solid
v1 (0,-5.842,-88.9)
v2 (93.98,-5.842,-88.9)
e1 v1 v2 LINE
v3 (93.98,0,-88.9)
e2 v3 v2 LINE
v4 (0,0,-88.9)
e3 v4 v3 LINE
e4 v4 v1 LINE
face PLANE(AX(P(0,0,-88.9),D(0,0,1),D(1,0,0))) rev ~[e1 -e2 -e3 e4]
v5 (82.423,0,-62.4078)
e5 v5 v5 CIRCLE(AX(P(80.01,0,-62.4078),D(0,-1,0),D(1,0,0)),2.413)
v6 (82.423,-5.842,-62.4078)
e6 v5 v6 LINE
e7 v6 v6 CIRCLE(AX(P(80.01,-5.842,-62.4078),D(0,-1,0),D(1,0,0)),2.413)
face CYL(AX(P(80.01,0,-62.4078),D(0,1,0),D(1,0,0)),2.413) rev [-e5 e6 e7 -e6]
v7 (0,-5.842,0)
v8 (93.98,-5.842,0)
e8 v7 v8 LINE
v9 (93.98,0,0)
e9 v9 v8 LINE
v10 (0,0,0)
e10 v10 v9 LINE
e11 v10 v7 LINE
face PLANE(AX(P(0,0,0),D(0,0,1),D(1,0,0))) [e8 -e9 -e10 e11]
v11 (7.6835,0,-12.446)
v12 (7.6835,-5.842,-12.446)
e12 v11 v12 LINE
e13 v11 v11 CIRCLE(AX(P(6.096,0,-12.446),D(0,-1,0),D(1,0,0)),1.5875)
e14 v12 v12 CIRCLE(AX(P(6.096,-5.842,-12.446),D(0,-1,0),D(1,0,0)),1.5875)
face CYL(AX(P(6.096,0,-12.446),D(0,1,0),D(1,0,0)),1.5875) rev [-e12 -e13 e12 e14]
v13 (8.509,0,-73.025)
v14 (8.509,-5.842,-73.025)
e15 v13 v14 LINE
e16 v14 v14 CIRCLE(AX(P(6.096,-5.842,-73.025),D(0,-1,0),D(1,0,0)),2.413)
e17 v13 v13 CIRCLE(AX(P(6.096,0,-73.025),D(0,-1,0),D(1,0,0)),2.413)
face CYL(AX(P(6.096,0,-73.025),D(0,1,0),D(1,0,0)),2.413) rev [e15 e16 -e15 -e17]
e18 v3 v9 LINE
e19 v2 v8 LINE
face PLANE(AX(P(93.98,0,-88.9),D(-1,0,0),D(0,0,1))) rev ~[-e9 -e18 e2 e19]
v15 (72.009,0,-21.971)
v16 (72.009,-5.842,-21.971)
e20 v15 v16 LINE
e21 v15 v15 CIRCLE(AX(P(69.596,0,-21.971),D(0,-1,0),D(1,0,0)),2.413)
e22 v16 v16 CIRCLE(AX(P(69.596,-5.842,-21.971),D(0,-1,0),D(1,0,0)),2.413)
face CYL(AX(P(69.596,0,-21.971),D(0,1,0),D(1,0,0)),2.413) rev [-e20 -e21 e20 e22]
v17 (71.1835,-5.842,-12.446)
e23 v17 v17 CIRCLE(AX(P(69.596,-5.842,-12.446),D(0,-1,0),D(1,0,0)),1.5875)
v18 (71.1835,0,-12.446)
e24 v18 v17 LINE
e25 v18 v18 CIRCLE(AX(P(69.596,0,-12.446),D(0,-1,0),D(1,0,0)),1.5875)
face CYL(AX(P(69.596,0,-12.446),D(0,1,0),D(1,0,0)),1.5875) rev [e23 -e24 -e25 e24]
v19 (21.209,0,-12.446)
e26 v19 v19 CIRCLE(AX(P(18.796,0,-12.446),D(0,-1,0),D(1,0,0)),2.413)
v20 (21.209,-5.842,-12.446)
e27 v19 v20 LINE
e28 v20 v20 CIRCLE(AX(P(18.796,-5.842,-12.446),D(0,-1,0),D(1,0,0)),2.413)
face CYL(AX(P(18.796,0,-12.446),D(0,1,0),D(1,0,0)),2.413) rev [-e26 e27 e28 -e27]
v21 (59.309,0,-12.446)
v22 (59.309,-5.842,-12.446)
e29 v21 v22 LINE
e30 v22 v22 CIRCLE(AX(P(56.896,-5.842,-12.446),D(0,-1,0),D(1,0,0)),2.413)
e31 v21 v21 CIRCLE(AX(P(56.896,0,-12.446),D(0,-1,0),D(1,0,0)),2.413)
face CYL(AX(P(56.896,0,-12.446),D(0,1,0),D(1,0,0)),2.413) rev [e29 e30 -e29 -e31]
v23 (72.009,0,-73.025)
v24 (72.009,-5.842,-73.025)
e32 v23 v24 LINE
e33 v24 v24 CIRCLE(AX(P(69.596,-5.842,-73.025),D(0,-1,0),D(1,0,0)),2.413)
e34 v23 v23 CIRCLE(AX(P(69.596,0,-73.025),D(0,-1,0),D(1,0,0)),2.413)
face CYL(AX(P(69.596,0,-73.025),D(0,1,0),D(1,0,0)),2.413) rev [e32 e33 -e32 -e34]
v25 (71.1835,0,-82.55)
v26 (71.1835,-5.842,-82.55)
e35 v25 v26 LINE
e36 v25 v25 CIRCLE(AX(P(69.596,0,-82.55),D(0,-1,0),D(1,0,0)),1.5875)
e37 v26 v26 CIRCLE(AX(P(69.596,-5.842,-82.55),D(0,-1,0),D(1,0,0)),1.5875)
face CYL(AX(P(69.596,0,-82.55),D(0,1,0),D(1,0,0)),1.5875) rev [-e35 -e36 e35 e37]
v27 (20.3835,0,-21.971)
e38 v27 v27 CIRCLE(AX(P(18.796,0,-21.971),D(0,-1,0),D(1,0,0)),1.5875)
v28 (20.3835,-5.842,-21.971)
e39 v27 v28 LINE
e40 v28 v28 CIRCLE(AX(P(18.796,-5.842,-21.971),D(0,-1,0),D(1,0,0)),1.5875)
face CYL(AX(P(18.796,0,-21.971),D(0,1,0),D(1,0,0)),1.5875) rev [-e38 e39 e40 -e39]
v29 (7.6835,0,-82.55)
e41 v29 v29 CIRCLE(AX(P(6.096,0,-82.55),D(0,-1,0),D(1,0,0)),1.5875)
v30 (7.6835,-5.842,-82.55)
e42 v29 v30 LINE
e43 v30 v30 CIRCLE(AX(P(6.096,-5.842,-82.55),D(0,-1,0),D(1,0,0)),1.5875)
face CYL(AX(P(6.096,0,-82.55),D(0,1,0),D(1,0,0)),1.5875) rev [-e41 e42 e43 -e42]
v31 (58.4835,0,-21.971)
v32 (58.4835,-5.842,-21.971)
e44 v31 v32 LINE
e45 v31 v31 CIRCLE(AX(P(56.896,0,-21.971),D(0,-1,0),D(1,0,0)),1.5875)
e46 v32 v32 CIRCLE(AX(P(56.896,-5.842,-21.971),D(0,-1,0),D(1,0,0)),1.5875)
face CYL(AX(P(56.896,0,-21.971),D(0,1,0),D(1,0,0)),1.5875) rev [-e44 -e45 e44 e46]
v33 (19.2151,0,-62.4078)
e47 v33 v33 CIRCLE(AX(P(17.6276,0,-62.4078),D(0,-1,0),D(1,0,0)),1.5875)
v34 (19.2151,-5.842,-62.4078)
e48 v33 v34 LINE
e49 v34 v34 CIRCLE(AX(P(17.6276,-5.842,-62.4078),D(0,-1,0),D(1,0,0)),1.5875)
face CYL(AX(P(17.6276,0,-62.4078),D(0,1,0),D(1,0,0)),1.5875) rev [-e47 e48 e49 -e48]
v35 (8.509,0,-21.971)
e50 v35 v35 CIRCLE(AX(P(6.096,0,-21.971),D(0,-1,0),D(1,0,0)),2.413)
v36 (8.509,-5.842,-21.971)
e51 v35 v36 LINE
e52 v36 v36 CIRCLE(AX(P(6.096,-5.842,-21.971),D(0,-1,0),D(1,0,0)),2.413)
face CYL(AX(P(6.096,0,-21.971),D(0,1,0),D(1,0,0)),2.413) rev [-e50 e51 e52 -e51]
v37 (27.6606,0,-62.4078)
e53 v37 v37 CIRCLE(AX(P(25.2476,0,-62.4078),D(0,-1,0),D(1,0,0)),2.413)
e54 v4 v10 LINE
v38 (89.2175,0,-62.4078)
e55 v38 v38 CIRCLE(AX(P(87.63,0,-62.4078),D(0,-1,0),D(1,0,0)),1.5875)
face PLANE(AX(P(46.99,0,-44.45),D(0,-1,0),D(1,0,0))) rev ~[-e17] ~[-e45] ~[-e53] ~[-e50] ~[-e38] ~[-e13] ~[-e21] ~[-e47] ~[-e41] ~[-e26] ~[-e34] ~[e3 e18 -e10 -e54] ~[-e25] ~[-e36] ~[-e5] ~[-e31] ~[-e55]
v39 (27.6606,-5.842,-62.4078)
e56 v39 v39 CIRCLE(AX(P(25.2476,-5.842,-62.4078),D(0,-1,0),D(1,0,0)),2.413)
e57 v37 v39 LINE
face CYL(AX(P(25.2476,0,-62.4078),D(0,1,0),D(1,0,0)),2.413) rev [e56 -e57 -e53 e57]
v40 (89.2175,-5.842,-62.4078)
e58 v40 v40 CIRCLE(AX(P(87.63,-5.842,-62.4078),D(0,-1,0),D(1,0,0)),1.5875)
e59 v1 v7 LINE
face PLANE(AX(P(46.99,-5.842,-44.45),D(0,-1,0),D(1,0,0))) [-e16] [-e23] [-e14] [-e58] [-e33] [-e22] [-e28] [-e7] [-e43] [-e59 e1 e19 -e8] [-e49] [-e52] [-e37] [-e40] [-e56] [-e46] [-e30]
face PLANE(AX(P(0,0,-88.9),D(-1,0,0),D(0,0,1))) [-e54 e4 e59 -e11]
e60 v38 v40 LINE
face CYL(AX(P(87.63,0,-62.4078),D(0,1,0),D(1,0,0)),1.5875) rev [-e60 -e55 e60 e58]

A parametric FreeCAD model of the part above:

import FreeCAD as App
import Part
import Sketcher
Q = App.Units.Quantity


def add_polygon(sketch, points):
    """Adds a closed chain of lines whose ends are joined by coincident constraints."""
    first, n = sketch.GeometryCount, len(points)
    for a, b in zip(points, points[1:] + points[:1]):
        sketch.addGeometry(Part.LineSegment(App.Vector(*a, 0), App.Vector(*b, 0)), False)
    for i in range(n):
        sketch.addConstraint(Sketcher.Constraint("Coincident", first + i, 2, first + (i + 1) % n, 1))

doc = App.newDocument("Part")
params = doc.addObject("Spreadsheet::Sheet", "Params")
for row, (alias, value) in enumerate([
    ("sketch1_diameter", "0.19 in"),
    ("sketch1_diameter2", "0.125 in"),
    ("sketch1_width", "3.7 in"),
    ("sketch1_height", "3.5 in"),
    ("pad1_length", "0.23 in"),
], start=1):
    params.set(f"A{row}", alias)
    params.set(f"B{row}", "=" + value)
    params.setAlias(f"B{row}", alias)

body = doc.addObject("PartDesign::Body", "Body")

sketch1 = body.newObject("Sketcher::SketchObject", "Sketch")
sketch1.AttachmentSupport = (doc.getObject("XZ_Plane"), [""])
sketch1.MapMode = "FlatFace"
add_polygon(sketch1, [(0, 0), (0, -88.9), (94, -88.9), (94, 0)])
sketch1.addGeometry(Part.Circle(App.Vector(6.1, -82.5, 0), App.Vector(0, 0, 1), 1.6), False)
sketch1.addGeometry(Part.Circle(App.Vector(6.1, -73, 0), App.Vector(0, 0, 1), 2.4), False)
sketch1.addGeometry(Part.Circle(App.Vector(17.6, -62.4, 0), App.Vector(0, 0, 1), 1.6), False)
sketch1.addGeometry(Part.Circle(App.Vector(25.2, -62.4, 0), App.Vector(0, 0, 1), 2.4), False)
sketch1.addGeometry(Part.Circle(App.Vector(69.6, -82.5, 0), App.Vector(0, 0, 1), 1.6), False)
sketch1.addGeometry(Part.Circle(App.Vector(69.6, -73, 0), App.Vector(0, 0, 1), 2.4), False)
sketch1.addGeometry(Part.Circle(App.Vector(80, -62.4, 0), App.Vector(0, 0, 1), 2.4), False)
sketch1.addGeometry(Part.Circle(App.Vector(87.6, -62.4, 0), App.Vector(0, 0, 1), 1.6), False)
sketch1.addGeometry(Part.Circle(App.Vector(6.1, -22, 0), App.Vector(0, 0, 1), 2.4), False)
sketch1.addGeometry(Part.Circle(App.Vector(18.8, -22, 0), App.Vector(0, 0, 1), 1.6), False)
sketch1.addGeometry(Part.Circle(App.Vector(6.1, -12.4, 0), App.Vector(0, 0, 1), 1.6), False)
sketch1.addGeometry(Part.Circle(App.Vector(18.8, -12.4, 0), App.Vector(0, 0, 1), 2.4), False)
sketch1.addGeometry(Part.Circle(App.Vector(56.9, -22, 0), App.Vector(0, 0, 1), 1.6), False)
sketch1.addGeometry(Part.Circle(App.Vector(56.9, -12.4, 0), App.Vector(0, 0, 1), 2.4), False)
sketch1.addGeometry(Part.Circle(App.Vector(69.6, -22, 0), App.Vector(0, 0, 1), 2.4), False)
sketch1.addGeometry(Part.Circle(App.Vector(69.6, -12.4, 0), App.Vector(0, 0, 1), 1.6), False)
sketch1.addConstraint([
    Sketcher.Constraint("Vertical", 0),
    Sketcher.Constraint("Horizontal", 1),
    Sketcher.Constraint("Vertical", 2),
    Sketcher.Constraint("Horizontal", 3),
    Sketcher.Constraint("Coincident", 3, 2, -1, 1),
    Sketcher.Constraint("Equal", 4, 6),
    Sketcher.Constraint("Equal", 5, 7),
    Sketcher.Constraint("Equal", 6, 8),
    Sketcher.Constraint("Equal", 7, 9),
    Sketcher.Constraint("Equal", 9, 10),
    Sketcher.Constraint("Equal", 8, 11),
    Sketcher.Constraint("Equal", 10, 12),
    Sketcher.Constraint("Equal", 11, 13),
    Sketcher.Constraint("Equal", 13, 14),
    Sketcher.Constraint("Equal", 12, 15),
    Sketcher.Constraint("Equal", 14, 16),
    Sketcher.Constraint("Equal", 15, 17),
    Sketcher.Constraint("Equal", 17, 18),
    Sketcher.Constraint("Equal", 16, 19),
    Sketcher.Constraint("Horizontal", 6, 3, 7, 3),
    Sketcher.Constraint("Horizontal", 4, 3, 8, 3),
    Sketcher.Constraint("Horizontal", 5, 3, 9, 3),
    Sketcher.Constraint("Horizontal", 7, 3, 10, 3),
    Sketcher.Constraint("Horizontal", 10, 3, 11, 3),
    Sketcher.Constraint("Horizontal", 12, 3, 13, 3),
    Sketcher.Constraint("Horizontal", 14, 3, 15, 3),
    Sketcher.Constraint("Horizontal", 13, 3, 16, 3),
    Sketcher.Constraint("Horizontal", 15, 3, 17, 3),
    Sketcher.Constraint("Horizontal", 16, 3, 18, 3),
    Sketcher.Constraint("Horizontal", 17, 3, 19, 3),
    Sketcher.Constraint("Vertical", 4, 3, 5, 3),
    Sketcher.Constraint("Vertical", 8, 3, 9, 3),
    Sketcher.Constraint("Vertical", 5, 3, 12, 3),
    Sketcher.Constraint("Vertical", 12, 3, 14, 3),
    Sketcher.Constraint("Vertical", 13, 3, 15, 3),
    Sketcher.Constraint("Vertical", 16, 3, 17, 3),
    Sketcher.Constraint("Vertical", 9, 3, 18, 3),
    Sketcher.Constraint("Vertical", 18, 3, 19, 3),
    Sketcher.Constraint("Diameter", 5, Q("0.19 in")),
    Sketcher.Constraint("Diameter", 4, Q("0.125 in")),
    Sketcher.Constraint("DistanceX", 1, 1, 1, 2, Q("3.7 in")),
    Sketcher.Constraint("DistanceY", 0, 2, 0, 1, Q("3.5 in")),
    Sketcher.Constraint("DistanceX", 12, 3, 16, 3, Q("2 in")),
    Sketcher.Constraint("DistanceX", 13, 3, 18, 3, Q("2 in")),
    Sketcher.Constraint("DistanceX", 6, 3, 7, 3, Q("0.3 in")),
    Sketcher.Constraint("DistanceX", 4, 3, 8, 3, Q("2.5 in")),
    Sketcher.Constraint("DistanceX", 10, 3, 11, 3, Q("0.3 in")),
    Sketcher.Constraint("DistanceX", -1, 1, 4, 3, Q("0.24 in")),
    Sketcher.Constraint("DistanceY", 4, 3, -1, 1, Q("3.25 in")),
    Sketcher.Constraint("DistanceX", -1, 1, 10, 3, Q("3.15 in")),
    Sketcher.Constraint("DistanceY", 14, 3, -1, 1, Q("0.49 in")),
    Sketcher.Constraint("DistanceY", 5, 3, 12, 3, Q("2.01 in")),
    Sketcher.Constraint("DistanceY", 5, 3, -1, 1, Q("2.875 in")),
    Sketcher.Constraint("DistanceX", -1, 1, 6, 3, Q("0.694 in")),
    Sketcher.Constraint("DistanceY", 6, 3, -1, 1, Q("2.457 in")),
])
sketch1.setExpression("Constraints[42]", "Params.sketch1_diameter")
sketch1.setExpression("Constraints[43]", "Params.sketch1_diameter2")
sketch1.setExpression("Constraints[44]", "Params.sketch1_width")
sketch1.setExpression("Constraints[45]", "Params.sketch1_height")
pad1 = body.newObject("PartDesign::Pad", "Pad")
pad1.Profile = sketch1
pad1.setExpression("Length", "Params.pad1_length")

doc.recompute()
